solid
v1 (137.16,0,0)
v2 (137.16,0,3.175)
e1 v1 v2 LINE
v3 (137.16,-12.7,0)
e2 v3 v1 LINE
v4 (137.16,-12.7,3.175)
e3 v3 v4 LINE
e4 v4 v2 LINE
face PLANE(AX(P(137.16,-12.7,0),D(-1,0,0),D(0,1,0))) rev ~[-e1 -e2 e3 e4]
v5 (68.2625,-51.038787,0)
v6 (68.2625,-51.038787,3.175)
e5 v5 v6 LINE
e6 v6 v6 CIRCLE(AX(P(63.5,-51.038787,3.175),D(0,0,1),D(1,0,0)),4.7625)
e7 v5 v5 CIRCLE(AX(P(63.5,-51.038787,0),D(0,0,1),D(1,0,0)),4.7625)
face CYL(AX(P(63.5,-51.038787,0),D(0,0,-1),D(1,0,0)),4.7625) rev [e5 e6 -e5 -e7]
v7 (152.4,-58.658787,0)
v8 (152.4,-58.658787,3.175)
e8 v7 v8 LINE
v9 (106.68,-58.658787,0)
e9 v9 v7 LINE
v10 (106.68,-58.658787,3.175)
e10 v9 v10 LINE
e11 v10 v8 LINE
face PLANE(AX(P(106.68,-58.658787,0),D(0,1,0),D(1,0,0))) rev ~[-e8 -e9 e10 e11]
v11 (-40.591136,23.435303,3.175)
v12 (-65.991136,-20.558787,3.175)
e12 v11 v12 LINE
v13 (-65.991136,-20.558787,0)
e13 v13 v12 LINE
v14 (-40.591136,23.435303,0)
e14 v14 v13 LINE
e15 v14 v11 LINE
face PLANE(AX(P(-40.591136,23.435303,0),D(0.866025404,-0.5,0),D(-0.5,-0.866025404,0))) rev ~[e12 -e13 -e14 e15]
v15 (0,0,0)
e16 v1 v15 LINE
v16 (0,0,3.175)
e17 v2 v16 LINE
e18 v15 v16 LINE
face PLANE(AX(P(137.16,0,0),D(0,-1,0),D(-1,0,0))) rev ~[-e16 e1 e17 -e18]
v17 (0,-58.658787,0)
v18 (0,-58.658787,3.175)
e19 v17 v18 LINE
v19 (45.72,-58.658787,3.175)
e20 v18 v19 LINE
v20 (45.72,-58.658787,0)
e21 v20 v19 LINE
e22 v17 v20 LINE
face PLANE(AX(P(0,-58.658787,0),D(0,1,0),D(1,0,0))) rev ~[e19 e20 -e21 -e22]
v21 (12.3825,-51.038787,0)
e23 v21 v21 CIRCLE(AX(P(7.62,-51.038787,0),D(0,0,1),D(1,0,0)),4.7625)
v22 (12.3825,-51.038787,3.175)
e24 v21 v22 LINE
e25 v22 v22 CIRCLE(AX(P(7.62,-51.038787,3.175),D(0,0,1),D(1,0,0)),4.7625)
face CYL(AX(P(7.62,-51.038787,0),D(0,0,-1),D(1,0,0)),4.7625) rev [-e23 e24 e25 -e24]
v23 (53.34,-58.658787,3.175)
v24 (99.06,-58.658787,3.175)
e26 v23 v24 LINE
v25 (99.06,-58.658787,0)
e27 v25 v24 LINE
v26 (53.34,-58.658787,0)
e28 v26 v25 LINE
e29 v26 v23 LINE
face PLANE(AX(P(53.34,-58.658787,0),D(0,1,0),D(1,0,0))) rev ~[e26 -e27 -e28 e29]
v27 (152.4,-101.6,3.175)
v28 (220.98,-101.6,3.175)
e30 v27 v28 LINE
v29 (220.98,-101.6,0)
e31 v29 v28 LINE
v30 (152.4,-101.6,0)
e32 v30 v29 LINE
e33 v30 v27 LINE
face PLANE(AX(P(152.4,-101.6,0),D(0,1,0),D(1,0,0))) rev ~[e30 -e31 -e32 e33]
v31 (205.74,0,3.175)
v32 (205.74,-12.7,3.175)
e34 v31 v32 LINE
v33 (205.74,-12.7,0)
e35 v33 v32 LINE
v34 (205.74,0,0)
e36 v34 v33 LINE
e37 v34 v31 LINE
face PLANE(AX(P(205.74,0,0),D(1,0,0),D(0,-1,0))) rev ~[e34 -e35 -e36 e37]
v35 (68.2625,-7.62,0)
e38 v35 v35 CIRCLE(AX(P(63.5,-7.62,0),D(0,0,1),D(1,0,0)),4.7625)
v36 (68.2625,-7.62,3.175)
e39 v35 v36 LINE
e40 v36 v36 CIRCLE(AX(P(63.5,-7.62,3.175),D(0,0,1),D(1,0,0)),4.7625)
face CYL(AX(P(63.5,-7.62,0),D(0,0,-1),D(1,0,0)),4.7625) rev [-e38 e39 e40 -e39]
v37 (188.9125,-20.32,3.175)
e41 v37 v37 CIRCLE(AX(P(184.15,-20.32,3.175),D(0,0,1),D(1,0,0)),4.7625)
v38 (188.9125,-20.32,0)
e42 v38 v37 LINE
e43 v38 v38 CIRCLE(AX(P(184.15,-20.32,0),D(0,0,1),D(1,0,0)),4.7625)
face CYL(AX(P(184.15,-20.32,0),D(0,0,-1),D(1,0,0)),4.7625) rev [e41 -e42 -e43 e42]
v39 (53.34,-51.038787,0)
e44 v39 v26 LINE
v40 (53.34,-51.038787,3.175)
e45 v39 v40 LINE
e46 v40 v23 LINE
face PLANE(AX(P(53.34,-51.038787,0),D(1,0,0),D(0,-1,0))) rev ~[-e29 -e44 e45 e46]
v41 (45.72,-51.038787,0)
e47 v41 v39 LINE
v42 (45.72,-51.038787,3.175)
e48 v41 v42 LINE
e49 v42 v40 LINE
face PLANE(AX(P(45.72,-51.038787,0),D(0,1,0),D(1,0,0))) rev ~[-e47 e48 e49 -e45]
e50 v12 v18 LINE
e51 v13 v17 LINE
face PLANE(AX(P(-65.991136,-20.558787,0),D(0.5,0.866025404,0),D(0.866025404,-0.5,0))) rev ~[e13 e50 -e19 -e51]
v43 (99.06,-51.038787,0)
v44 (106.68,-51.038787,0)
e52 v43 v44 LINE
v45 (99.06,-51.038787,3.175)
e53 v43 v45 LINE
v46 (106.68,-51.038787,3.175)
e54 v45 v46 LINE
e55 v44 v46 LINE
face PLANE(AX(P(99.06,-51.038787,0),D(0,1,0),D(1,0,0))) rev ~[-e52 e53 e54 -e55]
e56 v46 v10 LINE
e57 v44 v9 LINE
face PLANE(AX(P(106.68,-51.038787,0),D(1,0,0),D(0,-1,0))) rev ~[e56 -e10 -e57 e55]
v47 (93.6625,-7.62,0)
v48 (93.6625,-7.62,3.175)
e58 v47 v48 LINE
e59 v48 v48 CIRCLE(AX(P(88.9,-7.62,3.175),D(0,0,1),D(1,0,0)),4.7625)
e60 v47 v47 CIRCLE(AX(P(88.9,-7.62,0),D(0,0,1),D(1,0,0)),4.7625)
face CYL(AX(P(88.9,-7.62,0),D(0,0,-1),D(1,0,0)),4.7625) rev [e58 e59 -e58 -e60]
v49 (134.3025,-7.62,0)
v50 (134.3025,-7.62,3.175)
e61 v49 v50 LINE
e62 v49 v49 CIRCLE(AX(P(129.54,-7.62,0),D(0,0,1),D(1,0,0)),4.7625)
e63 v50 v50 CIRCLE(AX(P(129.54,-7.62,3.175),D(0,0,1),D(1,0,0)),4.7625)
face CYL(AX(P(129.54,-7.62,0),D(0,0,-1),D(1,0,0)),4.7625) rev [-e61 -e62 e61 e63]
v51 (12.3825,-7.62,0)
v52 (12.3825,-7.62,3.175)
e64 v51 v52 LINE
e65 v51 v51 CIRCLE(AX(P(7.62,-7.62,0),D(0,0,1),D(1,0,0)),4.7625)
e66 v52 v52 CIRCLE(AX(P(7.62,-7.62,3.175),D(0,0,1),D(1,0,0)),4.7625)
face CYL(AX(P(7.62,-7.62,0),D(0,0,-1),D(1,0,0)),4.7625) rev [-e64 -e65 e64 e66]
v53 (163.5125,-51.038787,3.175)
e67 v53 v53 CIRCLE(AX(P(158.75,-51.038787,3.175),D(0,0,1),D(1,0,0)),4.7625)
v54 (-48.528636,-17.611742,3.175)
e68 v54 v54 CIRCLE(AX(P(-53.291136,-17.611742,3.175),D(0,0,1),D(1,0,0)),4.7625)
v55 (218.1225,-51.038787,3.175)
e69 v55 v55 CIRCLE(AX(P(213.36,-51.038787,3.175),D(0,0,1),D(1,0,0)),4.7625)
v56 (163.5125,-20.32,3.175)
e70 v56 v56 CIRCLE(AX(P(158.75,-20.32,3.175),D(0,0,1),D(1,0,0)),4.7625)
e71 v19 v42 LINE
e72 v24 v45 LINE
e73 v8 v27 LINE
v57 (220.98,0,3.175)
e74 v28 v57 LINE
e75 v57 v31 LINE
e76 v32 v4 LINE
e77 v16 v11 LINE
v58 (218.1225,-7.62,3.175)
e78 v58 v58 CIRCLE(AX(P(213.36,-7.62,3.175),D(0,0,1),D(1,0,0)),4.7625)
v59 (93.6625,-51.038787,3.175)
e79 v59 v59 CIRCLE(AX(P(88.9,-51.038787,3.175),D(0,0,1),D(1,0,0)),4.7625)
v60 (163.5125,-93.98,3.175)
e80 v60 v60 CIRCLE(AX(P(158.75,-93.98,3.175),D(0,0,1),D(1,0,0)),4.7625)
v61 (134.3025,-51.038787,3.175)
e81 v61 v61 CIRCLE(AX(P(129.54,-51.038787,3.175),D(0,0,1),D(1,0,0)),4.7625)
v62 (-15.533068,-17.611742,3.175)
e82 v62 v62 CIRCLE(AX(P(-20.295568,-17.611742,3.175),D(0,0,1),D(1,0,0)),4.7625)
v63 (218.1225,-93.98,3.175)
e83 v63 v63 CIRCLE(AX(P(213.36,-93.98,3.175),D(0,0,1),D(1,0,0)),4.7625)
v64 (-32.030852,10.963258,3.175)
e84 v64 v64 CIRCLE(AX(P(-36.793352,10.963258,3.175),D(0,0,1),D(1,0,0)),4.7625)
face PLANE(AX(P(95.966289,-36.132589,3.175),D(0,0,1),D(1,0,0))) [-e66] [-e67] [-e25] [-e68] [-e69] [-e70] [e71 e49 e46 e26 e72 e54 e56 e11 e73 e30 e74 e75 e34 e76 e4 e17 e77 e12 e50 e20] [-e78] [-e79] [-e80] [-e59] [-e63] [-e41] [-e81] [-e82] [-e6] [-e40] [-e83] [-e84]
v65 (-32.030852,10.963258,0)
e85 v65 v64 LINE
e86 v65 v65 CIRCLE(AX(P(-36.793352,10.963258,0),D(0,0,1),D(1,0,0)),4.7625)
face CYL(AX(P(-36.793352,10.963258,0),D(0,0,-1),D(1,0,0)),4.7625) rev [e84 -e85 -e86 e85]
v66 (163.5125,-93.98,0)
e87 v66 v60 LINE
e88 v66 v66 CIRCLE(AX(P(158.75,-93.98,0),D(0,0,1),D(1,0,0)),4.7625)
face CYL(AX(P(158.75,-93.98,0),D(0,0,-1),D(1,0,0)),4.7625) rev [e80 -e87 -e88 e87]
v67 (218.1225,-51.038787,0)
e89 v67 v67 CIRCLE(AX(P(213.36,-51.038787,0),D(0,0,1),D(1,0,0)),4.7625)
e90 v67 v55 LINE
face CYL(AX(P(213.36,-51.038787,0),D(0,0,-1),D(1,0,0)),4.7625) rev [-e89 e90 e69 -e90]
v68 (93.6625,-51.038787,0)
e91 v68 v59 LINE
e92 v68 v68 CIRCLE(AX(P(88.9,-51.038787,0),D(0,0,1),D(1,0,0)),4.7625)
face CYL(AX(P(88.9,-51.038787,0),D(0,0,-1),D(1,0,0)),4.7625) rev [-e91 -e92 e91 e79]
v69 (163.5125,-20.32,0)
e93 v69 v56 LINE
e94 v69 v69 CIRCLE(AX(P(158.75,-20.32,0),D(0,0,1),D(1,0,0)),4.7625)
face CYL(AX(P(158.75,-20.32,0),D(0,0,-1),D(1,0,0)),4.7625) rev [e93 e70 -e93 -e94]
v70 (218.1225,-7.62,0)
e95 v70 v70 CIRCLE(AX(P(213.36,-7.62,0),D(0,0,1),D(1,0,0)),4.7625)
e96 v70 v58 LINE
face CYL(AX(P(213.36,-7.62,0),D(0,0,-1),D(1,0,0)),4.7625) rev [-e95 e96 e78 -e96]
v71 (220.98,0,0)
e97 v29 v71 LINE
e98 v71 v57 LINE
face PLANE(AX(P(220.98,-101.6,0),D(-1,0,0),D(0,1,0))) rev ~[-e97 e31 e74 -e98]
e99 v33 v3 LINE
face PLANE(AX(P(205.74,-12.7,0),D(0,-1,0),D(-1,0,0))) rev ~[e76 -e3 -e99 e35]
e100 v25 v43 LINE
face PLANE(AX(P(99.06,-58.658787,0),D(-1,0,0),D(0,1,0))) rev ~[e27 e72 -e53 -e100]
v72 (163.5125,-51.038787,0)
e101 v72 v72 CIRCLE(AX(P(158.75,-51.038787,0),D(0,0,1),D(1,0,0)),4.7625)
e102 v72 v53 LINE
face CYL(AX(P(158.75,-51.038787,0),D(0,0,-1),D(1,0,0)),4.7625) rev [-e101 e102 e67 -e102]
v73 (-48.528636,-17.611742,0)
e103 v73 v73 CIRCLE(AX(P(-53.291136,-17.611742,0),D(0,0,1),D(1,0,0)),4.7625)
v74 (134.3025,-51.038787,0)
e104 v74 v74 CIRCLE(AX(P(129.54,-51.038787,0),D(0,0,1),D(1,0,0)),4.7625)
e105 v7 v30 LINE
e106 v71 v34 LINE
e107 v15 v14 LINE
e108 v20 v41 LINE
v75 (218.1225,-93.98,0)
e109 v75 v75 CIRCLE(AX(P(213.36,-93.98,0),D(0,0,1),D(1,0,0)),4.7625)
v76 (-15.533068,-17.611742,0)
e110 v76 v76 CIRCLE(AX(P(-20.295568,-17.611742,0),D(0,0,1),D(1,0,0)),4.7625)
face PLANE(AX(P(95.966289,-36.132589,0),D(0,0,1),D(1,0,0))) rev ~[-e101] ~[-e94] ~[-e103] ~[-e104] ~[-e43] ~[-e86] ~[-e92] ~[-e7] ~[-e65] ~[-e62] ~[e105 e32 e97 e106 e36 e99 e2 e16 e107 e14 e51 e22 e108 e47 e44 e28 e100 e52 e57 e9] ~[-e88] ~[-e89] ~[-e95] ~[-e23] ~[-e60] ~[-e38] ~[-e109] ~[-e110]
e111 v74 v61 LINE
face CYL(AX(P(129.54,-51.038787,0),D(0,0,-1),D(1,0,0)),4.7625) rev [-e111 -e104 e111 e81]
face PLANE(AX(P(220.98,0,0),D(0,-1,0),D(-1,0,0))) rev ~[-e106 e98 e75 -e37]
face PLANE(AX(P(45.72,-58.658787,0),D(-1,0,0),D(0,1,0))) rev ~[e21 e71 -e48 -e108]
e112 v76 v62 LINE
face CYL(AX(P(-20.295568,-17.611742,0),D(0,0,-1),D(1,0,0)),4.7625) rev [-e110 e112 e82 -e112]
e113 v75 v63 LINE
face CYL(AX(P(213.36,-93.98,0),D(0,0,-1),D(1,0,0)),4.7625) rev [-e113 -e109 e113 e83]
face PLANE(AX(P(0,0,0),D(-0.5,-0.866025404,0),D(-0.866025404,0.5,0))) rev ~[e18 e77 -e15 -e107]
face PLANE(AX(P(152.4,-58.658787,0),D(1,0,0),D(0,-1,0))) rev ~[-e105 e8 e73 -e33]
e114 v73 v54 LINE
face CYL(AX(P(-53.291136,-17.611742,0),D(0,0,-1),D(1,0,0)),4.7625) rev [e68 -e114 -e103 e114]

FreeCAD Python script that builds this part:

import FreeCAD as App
import Part
import Sketcher
Q = App.Units.Quantity

doc = App.newDocument("Part")
body = doc.addObject("PartDesign::Body", "Body")

# Sketch on XY plane
sketch1 = body.newObject("Sketcher::SketchObject", "Sketch")
sketch1.AttachmentSupport = (doc.getObject("XY_Plane"), [""])
sketch1.MapMode = "FlatFace"
sketch1.addGeometry([
    Part.LineSegment(App.Vector(0, 0, 0), App.Vector(-40.6, 23.4, 0)),  # 0
    Part.LineSegment(App.Vector(-40.6, 23.4, 0), App.Vector(-66, -20.6, 0)),  # 1
    Part.LineSegment(App.Vector(-66, -20.6, 0), App.Vector(0, -58.7, 0)),  # 2
    Part.LineSegment(App.Vector(0, -58.7, 0), App.Vector(45.7, -58.7, 0)),  # 3
    Part.LineSegment(App.Vector(45.7, -58.7, 0), App.Vector(45.7, -51, 0)),  # 4
    Part.LineSegment(App.Vector(45.7, -51, 0), App.Vector(53.3, -51, 0)),  # 5
    Part.LineSegment(App.Vector(53.3, -51, 0), App.Vector(53.3, -58.7, 0)),  # 6
    Part.LineSegment(App.Vector(53.3, -58.7, 0), App.Vector(99.1, -58.7, 0)),  # 7
    Part.LineSegment(App.Vector(99.1, -58.7, 0), App.Vector(99.1, -51, 0)),  # 8
    Part.LineSegment(App.Vector(99.1, -51, 0), App.Vector(106.7, -51, 0)),  # 9
    Part.LineSegment(App.Vector(106.7, -51, 0), App.Vector(106.7, -58.7, 0)),  # 10
    Part.LineSegment(App.Vector(106.7, -58.7, 0), App.Vector(152.4, -58.7, 0)),  # 11
    Part.LineSegment(App.Vector(152.4, -58.7, 0), App.Vector(152.4, -101.6, 0)),  # 12
    Part.LineSegment(App.Vector(152.4, -101.6, 0), App.Vector(221, -101.6, 0)),  # 13
    Part.LineSegment(App.Vector(221, -101.6, 0), App.Vector(221, 0, 0)),  # 14
    Part.LineSegment(App.Vector(221, 0, 0), App.Vector(205.7, 0, 0)),  # 15
    Part.LineSegment(App.Vector(205.7, 0, 0), App.Vector(205.7, -12.7, 0)),  # 16
    Part.LineSegment(App.Vector(205.7, -12.7, 0), App.Vector(137.2, -12.7, 0)),  # 17
    Part.LineSegment(App.Vector(137.2, -12.7, 0), App.Vector(137.2, 0, 0)),  # 18
    Part.LineSegment(App.Vector(137.2, 0, 0), App.Vector(0, 0, 0)),  # 19
    Part.Circle(App.Vector(7.6, -51, 0), App.Vector(0, 0, 1), 4.8),  # 20
    Part.Circle(App.Vector(63.5, -51, 0), App.Vector(0, 0, 1), 4.8),  # 21
    Part.Circle(App.Vector(158.8, -94, 0), App.Vector(0, 0, 1), 4.8),  # 22
    Part.Circle(App.Vector(213.4, -94, 0), App.Vector(0, 0, 1), 4.8),  # 23
    Part.Circle(App.Vector(88.9, -51, 0), App.Vector(0, 0, 1), 4.8),  # 24
    Part.Circle(App.Vector(129.5, -51, 0), App.Vector(0, 0, 1), 4.8),  # 25
    Part.Circle(App.Vector(158.8, -51, 0), App.Vector(0, 0, 1), 4.8),  # 26
    Part.Circle(App.Vector(213.4, -51, 0), App.Vector(0, 0, 1), 4.8),  # 27
    Part.Circle(App.Vector(-53.3, -17.6, 0), App.Vector(0, 0, 1), 4.8),  # 28
    Part.Circle(App.Vector(-20.3, -17.6, 0), App.Vector(0, 0, 1), 4.8),  # 29
    Part.Circle(App.Vector(7.6, -7.6, 0), App.Vector(0, 0, 1), 4.8),  # 30
    Part.Circle(App.Vector(-36.8, 11, 0), App.Vector(0, 0, 1), 4.8),  # 31
    Part.Circle(App.Vector(63.5, -7.6, 0), App.Vector(0, 0, 1), 4.8),  # 32
    Part.Circle(App.Vector(158.8, -20.3, 0), App.Vector(0, 0, 1), 4.8),  # 33
    Part.Circle(App.Vector(184.2, -20.3, 0), App.Vector(0, 0, 1), 4.8),  # 34
    Part.Circle(App.Vector(88.9, -7.6, 0), App.Vector(0, 0, 1), 4.8),  # 35
    Part.Circle(App.Vector(129.5, -7.6, 0), App.Vector(0, 0, 1), 4.8),  # 36
    Part.Circle(App.Vector(213.4, -7.6, 0), App.Vector(0, 0, 1), 4.8),  # 37
], False)
sketch1.addConstraint([
    Sketcher.Constraint("Coincident", 0, 2, 1, 1),
    Sketcher.Constraint("Coincident", 1, 2, 2, 1),
    Sketcher.Constraint("Coincident", 2, 2, 3, 1),
    Sketcher.Constraint("Coincident", 3, 2, 4, 1),
    Sketcher.Constraint("Coincident", 4, 2, 5, 1),
    Sketcher.Constraint("Coincident", 5, 2, 6, 1),
    Sketcher.Constraint("Coincident", 6, 2, 7, 1),
    Sketcher.Constraint("Coincident", 7, 2, 8, 1),
    Sketcher.Constraint("Coincident", 8, 2, 9, 1),
    Sketcher.Constraint("Coincident", 9, 2, 10, 1),
    Sketcher.Constraint("Coincident", 10, 2, 11, 1),
    Sketcher.Constraint("Coincident", 11, 2, 12, 1),
    Sketcher.Constraint("Coincident", 12, 2, 13, 1),
    Sketcher.Constraint("Coincident", 13, 2, 14, 1),
    Sketcher.Constraint("Coincident", 14, 2, 15, 1),
    Sketcher.Constraint("Coincident", 15, 2, 16, 1),
    Sketcher.Constraint("Coincident", 16, 2, 17, 1),
    Sketcher.Constraint("Coincident", 17, 2, 18, 1),
    Sketcher.Constraint("Coincident", 18, 2, 19, 1),
    Sketcher.Constraint("Coincident", 19, 2, 0, 1),
    Sketcher.Constraint("Horizontal", 3),
    Sketcher.Constraint("Vertical", 4),
    Sketcher.Constraint("Horizontal", 5),
    Sketcher.Constraint("Vertical", 6),
    Sketcher.Constraint("Horizontal", 7),
    Sketcher.Constraint("Vertical", 8),
    Sketcher.Constraint("Horizontal", 9),
    Sketcher.Constraint("Vertical", 10),
    Sketcher.Constraint("Horizontal", 11),
    Sketcher.Constraint("Vertical", 12),
    Sketcher.Constraint("Horizontal", 13),
    Sketcher.Constraint("Vertical", 14),
    Sketcher.Constraint("Horizontal", 15),
    Sketcher.Constraint("Vertical", 16),
    Sketcher.Constraint("Horizontal", 17),
    Sketcher.Constraint("Vertical", 18),
    Sketcher.Constraint("Horizontal", 19),
    Sketcher.Constraint("Coincident", 19, 2, -1, 1),
    Sketcher.Constraint("Equal", 20, 21),
    Sketcher.Constraint("Equal", 21, 22),
    Sketcher.Constraint("Equal", 22, 23),
    Sketcher.Constraint("Equal", 23, 24),
    Sketcher.Constraint("Equal", 24, 25),
    Sketcher.Constraint("Equal", 25, 26),
    Sketcher.Constraint("Equal", 26, 27),
    Sketcher.Constraint("Equal", 27, 28),
    Sketcher.Constraint("Equal", 28, 29),
    Sketcher.Constraint("Equal", 29, 30),
    Sketcher.Constraint("Equal", 30, 31),
    Sketcher.Constraint("Equal", 31, 32),
    Sketcher.Constraint("Equal", 32, 33),
    Sketcher.Constraint("Equal", 33, 34),
    Sketcher.Constraint("Equal", 34, 35),
    Sketcher.Constraint("Equal", 35, 36),
    Sketcher.Constraint("Equal", 36, 37),
    Sketcher.Constraint("PointOnObject", 2, 2, -2),
    Sketcher.Constraint("PointOnObject", 14, 2, -1),
    Sketcher.Constraint("Perpendicular", 0, 1),
    Sketcher.Constraint("Perpendicular", 1, 2),
    Sketcher.Constraint("Horizontal", 20, 3, 21, 3),
    Sketcher.Constraint("Horizontal", 22, 3, 23, 3),
    Sketcher.Constraint("Horizontal", 21, 3, 24, 3),
    Sketcher.Constraint("Horizontal", 24, 3, 25, 3),
    Sketcher.Constraint("Horizontal", 25, 3, 26, 3),
    Sketcher.Constraint("Horizontal", 26, 3, 27, 3),
    Sketcher.Constraint("Horizontal", 28, 3, 29, 3),
    Sketcher.Constraint("Horizontal", 30, 3, 32, 3),
    Sketcher.Constraint("Horizontal", 33, 3, 34, 3),
    Sketcher.Constraint("Horizontal", 32, 3, 35, 3),
    Sketcher.Constraint("Horizontal", 35, 3, 36, 3),
    Sketcher.Constraint("Horizontal", 36, 3, 37, 3),
    Sketcher.Constraint("Horizontal", 27, 3, 4, 2),
    Sketcher.Constraint("Horizontal", 3, 2, 6, 2),
    Sketcher.Constraint("Horizontal", 5, 2, 8, 2),
    Sketcher.Constraint("Horizontal", 7, 2, 10, 2),
    Sketcher.Constraint("Vertical", 22, 3, 26, 3),
    Sketcher.Constraint("Vertical", 23, 3, 27, 3),
    Sketcher.Constraint("Vertical", 20, 3, 30, 3),
    Sketcher.Constraint("Vertical", 21, 3, 32, 3),
    Sketcher.Constraint("Vertical", 26, 3, 33, 3),
    Sketcher.Constraint("Vertical", 24, 3, 35, 3),
    Sketcher.Constraint("Vertical", 25, 3, 36, 3),
    Sketcher.Constraint("Vertical", 27, 3, 37, 3),
    Sketcher.Constraint("Equal", 3, 7),
    Sketcher.Constraint("Equal", 5, 9),
    Sketcher.Constraint("Equal", 7, 11),
    Sketcher.Constraint("Equal", 13, 17),
    Sketcher.Constraint("Equal", 9, 4),
    Sketcher.Constraint("DistanceY", 14, 1, 14, 2, Q("4 in")),
    Sketcher.Constraint("Distance", 1, Q("2 in")),
    Sketcher.Constraint("Distance", 2, Q("3 in")),
    Sketcher.Constraint("Diameter", 20, Q("0.375 in")),
    Sketcher.Constraint("DistanceX", 3, 1, 3, 2, Q("1.8 in")),
    Sketcher.Constraint("DistanceX", 5, 1, 5, 2, Q("0.3 in")),
    Sketcher.Constraint("DistanceX", 13, 1, 13, 2, Q("2.7 in")),
    Sketcher.Constraint("DistanceX", 15, 2, 15, 1, Q("0.6 in")),
    Sketcher.Constraint("DistanceY", 16, 2, 16, 1, Q("0.5 in")),
    Sketcher.Constraint("Angle", 0, Q("150 deg")),
    Sketcher.Constraint("DistanceX", 21, 3, 24, 3, Q("1 in")),
    Sketcher.Constraint("DistanceX", 33, 3, 34, 3, Q("1 in")),
    Sketcher.Constraint("DistanceX", -1, 1, 20, 3, Q("0.3 in")),
    Sketcher.Constraint("DistanceX", -1, 1, 21, 3, Q("2.5 in")),
    Sketcher.Constraint("DistanceY", 22, 3, -1, 1, Q("3.7 in")),
    Sketcher.Constraint("DistanceX", -1, 1, 23, 3, Q("8.4 in")),
    Sketcher.Constraint("DistanceX", -1, 1, 25, 3, Q("5.1 in")),
    Sketcher.Constraint("DistanceY", 30, 3, -1, 1, Q("0.3 in")),
    Sketcher.Constraint("DistanceY", 33, 3, -1, 1, Q("0.8 in")),
    Sketcher.Constraint("DistanceX", 28, 3, 0, 2, Q("0.5 in")),
    Sketcher.Constraint("DistanceX", -1, 1, 22, 3, Q("6.25 in")),
    Sketcher.Constraint("DistanceY", 28, 3, 31, 3, Q("1.125 in")),
    Sketcher.Constraint("DistanceX", 31, 3, -1, 1, Q("36.793352 mm")),
    Sketcher.Constraint("DistanceY", 28, 3, -1, 1, Q("17.611742 mm")),
    Sketcher.Constraint("DistanceX", 29, 3, -1, 1, Q("20.295568 mm")),
])
pad1 = body.newObject("PartDesign::Pad", "Pad")
pad1.Profile = sketch1
pad1.Length = Q("0.125 in")

doc.recompute()
